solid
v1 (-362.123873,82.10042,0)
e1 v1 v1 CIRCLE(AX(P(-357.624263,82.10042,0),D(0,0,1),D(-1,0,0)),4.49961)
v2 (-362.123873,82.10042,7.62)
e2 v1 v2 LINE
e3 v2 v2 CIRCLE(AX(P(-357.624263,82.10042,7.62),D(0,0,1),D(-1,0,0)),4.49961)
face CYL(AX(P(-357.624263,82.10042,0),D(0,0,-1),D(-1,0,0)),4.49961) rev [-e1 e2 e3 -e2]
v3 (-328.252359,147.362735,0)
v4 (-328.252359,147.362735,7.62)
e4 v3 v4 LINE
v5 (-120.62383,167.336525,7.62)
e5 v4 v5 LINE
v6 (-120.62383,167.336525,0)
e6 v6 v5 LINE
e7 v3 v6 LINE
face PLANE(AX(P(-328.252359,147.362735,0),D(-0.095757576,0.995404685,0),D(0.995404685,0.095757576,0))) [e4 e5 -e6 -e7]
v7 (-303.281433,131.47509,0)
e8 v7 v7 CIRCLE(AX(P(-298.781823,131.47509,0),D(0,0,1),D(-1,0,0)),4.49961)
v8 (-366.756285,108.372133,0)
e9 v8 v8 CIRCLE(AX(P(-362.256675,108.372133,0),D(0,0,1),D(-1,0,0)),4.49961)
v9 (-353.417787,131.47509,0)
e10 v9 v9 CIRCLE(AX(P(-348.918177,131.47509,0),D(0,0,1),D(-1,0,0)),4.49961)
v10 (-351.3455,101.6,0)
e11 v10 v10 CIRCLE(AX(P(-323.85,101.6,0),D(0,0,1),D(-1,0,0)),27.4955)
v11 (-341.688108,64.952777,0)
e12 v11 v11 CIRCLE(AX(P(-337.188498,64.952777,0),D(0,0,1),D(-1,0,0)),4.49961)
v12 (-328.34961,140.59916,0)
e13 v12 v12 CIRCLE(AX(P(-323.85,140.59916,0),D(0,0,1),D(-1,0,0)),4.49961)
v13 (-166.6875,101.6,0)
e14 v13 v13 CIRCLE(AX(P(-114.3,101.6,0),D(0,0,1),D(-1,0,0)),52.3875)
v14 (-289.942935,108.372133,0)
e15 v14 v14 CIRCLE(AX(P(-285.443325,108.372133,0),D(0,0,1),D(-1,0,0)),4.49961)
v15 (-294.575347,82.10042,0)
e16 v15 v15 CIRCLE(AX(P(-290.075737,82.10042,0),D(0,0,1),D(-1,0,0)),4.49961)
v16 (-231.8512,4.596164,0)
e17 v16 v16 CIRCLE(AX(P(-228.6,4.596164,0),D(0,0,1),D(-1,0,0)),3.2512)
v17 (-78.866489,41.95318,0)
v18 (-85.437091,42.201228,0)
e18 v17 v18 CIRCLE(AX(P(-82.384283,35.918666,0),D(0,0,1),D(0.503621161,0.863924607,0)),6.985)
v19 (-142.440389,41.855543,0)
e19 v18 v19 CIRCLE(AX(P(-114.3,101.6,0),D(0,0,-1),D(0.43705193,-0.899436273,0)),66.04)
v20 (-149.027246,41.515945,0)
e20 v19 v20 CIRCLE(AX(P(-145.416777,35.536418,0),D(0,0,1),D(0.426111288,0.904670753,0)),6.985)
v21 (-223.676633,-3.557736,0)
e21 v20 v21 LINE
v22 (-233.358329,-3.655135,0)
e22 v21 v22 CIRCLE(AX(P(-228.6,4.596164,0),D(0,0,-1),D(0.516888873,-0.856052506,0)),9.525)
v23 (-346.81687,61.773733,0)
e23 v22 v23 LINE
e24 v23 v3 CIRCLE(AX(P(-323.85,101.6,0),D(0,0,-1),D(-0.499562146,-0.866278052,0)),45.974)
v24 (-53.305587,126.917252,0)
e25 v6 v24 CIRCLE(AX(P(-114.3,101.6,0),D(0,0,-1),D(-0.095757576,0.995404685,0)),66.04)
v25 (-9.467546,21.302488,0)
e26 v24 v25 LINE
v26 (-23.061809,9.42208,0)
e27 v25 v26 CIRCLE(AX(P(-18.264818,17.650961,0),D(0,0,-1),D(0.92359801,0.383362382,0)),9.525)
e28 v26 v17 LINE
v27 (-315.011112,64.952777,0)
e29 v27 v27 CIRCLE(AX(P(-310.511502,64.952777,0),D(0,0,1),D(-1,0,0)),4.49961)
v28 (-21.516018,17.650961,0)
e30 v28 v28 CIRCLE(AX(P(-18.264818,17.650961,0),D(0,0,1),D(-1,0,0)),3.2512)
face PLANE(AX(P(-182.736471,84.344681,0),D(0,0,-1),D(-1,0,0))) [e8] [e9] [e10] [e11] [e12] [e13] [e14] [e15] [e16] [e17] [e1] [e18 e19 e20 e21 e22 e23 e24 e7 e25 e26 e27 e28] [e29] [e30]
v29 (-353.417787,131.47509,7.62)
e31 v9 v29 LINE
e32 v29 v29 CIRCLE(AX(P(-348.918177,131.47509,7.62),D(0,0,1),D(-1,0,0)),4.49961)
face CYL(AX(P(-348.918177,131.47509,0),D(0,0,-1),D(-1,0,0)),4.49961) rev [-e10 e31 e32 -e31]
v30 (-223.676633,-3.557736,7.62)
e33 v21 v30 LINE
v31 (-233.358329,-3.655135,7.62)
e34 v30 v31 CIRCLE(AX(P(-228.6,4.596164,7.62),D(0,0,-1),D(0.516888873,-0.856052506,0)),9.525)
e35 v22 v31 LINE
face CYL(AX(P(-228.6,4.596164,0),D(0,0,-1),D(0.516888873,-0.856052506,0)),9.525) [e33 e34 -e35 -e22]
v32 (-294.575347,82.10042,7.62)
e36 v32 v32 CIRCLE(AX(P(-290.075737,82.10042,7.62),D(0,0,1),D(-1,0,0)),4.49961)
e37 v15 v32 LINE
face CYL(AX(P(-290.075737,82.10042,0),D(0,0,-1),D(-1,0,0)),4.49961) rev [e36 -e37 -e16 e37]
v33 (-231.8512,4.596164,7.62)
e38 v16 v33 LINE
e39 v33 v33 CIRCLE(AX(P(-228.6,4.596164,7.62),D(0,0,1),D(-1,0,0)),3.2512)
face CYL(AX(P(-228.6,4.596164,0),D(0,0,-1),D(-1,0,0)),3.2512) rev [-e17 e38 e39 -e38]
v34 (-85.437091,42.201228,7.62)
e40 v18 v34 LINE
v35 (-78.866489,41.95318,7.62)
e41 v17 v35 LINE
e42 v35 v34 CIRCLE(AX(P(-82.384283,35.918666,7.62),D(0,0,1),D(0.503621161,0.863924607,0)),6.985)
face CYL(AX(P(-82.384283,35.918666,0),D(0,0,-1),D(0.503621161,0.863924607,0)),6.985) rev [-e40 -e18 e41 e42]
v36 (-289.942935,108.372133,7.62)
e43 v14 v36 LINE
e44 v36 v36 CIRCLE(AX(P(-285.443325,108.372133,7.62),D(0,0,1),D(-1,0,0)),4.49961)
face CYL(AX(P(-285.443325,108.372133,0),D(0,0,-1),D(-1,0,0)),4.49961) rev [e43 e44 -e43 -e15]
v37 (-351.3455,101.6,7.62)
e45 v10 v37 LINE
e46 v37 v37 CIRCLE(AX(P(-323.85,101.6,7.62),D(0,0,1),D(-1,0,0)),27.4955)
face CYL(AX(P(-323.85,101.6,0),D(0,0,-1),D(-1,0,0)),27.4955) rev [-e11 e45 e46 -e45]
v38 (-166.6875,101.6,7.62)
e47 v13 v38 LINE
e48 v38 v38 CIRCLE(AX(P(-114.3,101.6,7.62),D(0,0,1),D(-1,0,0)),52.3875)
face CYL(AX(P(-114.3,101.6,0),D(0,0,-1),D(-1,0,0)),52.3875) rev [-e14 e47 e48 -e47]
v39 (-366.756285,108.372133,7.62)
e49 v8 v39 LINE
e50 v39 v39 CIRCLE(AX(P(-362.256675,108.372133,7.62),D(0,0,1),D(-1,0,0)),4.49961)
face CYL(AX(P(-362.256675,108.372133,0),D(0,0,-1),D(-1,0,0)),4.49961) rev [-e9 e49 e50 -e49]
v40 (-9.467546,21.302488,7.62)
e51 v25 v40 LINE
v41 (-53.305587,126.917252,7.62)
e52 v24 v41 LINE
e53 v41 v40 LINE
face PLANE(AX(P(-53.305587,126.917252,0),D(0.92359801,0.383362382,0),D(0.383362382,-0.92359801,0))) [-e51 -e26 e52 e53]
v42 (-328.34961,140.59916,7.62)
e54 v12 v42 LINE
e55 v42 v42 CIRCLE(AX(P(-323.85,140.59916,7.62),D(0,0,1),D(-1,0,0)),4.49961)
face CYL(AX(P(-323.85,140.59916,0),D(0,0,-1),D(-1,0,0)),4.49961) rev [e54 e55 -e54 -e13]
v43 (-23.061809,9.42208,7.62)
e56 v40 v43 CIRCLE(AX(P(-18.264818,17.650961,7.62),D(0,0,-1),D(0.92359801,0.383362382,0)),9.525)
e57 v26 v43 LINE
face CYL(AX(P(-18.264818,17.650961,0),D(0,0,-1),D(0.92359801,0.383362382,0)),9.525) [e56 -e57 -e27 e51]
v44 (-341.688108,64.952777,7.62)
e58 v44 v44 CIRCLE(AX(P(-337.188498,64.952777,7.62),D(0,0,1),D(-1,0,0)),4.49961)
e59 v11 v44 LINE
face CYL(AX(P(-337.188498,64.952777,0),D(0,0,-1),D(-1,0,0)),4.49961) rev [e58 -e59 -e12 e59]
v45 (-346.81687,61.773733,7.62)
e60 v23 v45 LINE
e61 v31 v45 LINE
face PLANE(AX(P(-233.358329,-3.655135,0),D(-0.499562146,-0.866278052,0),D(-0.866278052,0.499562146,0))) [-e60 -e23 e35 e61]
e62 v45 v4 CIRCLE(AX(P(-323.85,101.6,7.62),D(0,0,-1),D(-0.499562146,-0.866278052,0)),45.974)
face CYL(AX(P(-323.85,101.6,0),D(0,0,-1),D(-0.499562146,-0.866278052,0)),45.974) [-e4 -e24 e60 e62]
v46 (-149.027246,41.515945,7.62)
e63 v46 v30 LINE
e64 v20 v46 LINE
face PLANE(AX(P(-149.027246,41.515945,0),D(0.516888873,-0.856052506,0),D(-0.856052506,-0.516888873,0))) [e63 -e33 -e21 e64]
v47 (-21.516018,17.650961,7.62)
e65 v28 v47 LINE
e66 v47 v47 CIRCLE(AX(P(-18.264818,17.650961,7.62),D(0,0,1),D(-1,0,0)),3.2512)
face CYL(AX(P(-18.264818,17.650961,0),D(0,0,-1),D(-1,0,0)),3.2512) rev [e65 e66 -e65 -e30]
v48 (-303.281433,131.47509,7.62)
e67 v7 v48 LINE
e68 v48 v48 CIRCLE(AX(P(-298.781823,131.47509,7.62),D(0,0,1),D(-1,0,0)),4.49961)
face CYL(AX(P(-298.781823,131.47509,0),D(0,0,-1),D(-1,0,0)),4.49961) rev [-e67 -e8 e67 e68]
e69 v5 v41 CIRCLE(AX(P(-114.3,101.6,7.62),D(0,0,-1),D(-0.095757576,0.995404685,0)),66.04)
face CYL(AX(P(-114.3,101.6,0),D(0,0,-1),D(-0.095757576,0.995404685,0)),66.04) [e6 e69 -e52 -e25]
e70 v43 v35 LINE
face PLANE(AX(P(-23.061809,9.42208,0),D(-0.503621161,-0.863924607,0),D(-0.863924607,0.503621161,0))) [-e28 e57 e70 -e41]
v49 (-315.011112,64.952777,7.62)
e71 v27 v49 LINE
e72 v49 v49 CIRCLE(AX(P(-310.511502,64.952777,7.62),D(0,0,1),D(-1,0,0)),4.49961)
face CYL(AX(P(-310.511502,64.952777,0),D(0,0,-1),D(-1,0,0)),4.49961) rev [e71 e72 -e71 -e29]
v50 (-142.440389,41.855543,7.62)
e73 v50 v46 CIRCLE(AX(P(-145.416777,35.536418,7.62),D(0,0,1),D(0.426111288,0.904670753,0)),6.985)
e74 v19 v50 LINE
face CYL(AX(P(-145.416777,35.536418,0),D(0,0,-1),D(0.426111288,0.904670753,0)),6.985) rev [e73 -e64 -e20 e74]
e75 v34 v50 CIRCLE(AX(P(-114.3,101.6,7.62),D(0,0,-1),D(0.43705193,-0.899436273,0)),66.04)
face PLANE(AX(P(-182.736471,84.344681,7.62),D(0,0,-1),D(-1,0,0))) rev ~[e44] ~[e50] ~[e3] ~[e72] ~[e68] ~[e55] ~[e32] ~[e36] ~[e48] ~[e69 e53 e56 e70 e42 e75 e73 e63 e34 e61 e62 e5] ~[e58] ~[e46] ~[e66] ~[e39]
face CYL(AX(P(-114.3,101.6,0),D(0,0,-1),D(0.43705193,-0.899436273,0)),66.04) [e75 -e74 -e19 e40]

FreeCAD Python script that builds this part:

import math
import FreeCAD as App
import Part
import Sketcher
from FreeCAD import Vector
Q = App.Units.Quantity

doc = App.newDocument("Part")
params = doc.addObject("Spreadsheet::Sheet", "Params")
for row, (alias, value) in enumerate([
    ("sketch1_radius", "2.6 in"),
    ("sketch1_radius2", "2.6 in"),
    ("sketch1_radius3", "1.81 in"),
    ("sketch1_diameter", "0.256 in"),
    ("sketch1_diameter2", "0.256 in"),
    ("pad1_length", "0.3 in"),
], start=1):
    params.set(f"A{row}", alias)
    params.set(f"B{row}", "=" + value)
    params.setAlias(f"B{row}", alias)

body = doc.addObject("PartDesign::Body", "Body")

# Sketch on XY plane
sketch1 = body.newObject("Sketcher::SketchObject", "Sketch")
sketch1.AttachmentSupport = (doc.getObject("XY_Plane"), [""])
sketch1.MapMode = "FlatFace"
sketch1.addGeometry([
    Part.LineSegment(Vector(-120.62383, 167.336525, 0), Vector(-328.252359, 147.362735, 0)),  # 0
    Part.ArcOfCircle(Part.Circle(Vector(-323.85, 101.6, 0), Vector(0, 0, 1), 45.974), math.radians(95.494924), math.radians(240.028964)),  # 1
    Part.LineSegment(Vector(-346.81687, 61.773733, 0), Vector(-233.358329, -3.655135, 0)),  # 2
    Part.ArcOfCircle(Part.Circle(Vector(-228.6, 4.596164, 0), Vector(0, 0, 1), 9.525), math.radians(-119.971036), math.radians(-58.876206)),  # 3
    Part.LineSegment(Vector(-223.676633, -3.557736, 0), Vector(-149.027246, 41.515945, 0)),  # 4
    Part.ArcOfCircle(Part.Circle(Vector(-145.416777, 35.536418, 0), Vector(0, 0, 1), 6.985), math.radians(64.778975), math.radians(121.123794)),  # 5
    Part.ArcOfCircle(Part.Circle(Vector(-114.3, 101.6, 0), Vector(0, 0, 1), 66.04), math.radians(-115.221025), math.radians(-64.084067)),  # 6
    Part.ArcOfCircle(Part.Circle(Vector(-82.384283, 35.918666, 0), Vector(0, 0, 1), 6.985), math.radians(59.760135), math.radians(115.915933)),  # 7
    Part.LineSegment(Vector(-78.866489, 41.95318, 0), Vector(-23.061809, 9.42208, 0)),  # 8
    Part.ArcOfCircle(Part.Circle(Vector(-18.264818, 17.650961, 0), Vector(0, 0, 1), 9.525), math.radians(-120.239865), math.radians(22.542113)),  # 9
    Part.LineSegment(Vector(-9.467546, 21.302488, 0), Vector(-53.305587, 126.917252, 0)),  # 10
    Part.ArcOfCircle(Part.Circle(Vector(-114.3, 101.6, 0), Vector(0, 0, 1), 66.04), math.radians(22.542113), math.radians(95.494924)),  # 11
    Part.Circle(Vector(-18.264818, 17.650961, 0), Vector(0, 0, 1), 3.2512),  # 12
    Part.Circle(Vector(-228.6, 4.596164, 0), Vector(0, 0, 1), 3.2512),  # 13
    Part.Circle(Vector(-310.511502, 64.952777, 0), Vector(0, 0, 1), 4.49961),  # 14
    Part.Circle(Vector(-337.188498, 64.952777, 0), Vector(0, 0, 1), 4.49961),  # 15
    Part.Circle(Vector(-114.3, 101.6, 0), Vector(0, 0, 1), 52.3875),  # 16
    Part.Circle(Vector(-290.075737, 82.10042, 0), Vector(0, 0, 1), 4.49961),  # 17
    Part.Circle(Vector(-357.624263, 82.10042, 0), Vector(0, 0, 1), 4.49961),  # 18
    Part.Circle(Vector(-285.443325, 108.372133, 0), Vector(0, 0, 1), 4.49961),  # 19
    Part.Circle(Vector(-323.85, 101.6, 0), Vector(0, 0, 1), 27.4955),  # 20
    Part.Circle(Vector(-362.256675, 108.372133, 0), Vector(0, 0, 1), 4.49961),  # 21
    Part.Circle(Vector(-298.781823, 131.47509, 0), Vector(0, 0, 1), 4.49961),  # 22
    Part.Circle(Vector(-348.918177, 131.47509, 0), Vector(0, 0, 1), 4.49961),  # 23
    Part.Circle(Vector(-323.85, 140.59916, 0), Vector(0, 0, 1), 4.49961),  # 24
], False)
sketch1.addConstraint([
    Sketcher.Constraint("Coincident", 0, 2, 1, 1),
    Sketcher.Constraint("Coincident", 1, 2, 2, 1),
    Sketcher.Constraint("Coincident", 2, 2, 3, 1),
    Sketcher.Constraint("Coincident", 3, 2, 4, 1),
    Sketcher.Constraint("Coincident", 4, 2, 5, 2),
    Sketcher.Constraint("Coincident", 5, 1, 6, 1),
    Sketcher.Constraint("Coincident", 6, 2, 7, 2),
    Sketcher.Constraint("Coincident", 7, 1, 8, 1),
    Sketcher.Constraint("Coincident", 8, 2, 9, 1),
    Sketcher.Constraint("Coincident", 9, 2, 10, 1),
    Sketcher.Constraint("Coincident", 10, 2, 11, 1),
    Sketcher.Constraint("Coincident", 11, 2, 0, 1),
    Sketcher.Constraint("Coincident", 11, 3, 6, 3),
    Sketcher.Constraint("Coincident", 12, 3, 9, 3),
    Sketcher.Constraint("Coincident", 13, 3, 3, 3),
    Sketcher.Constraint("Coincident", 16, 3, 6, 3),
    Sketcher.Constraint("Coincident", 20, 3, 1, 3),
    Sketcher.Constraint("Radius", 6, Q("2.6 in")),
    Sketcher.Constraint("Radius", 11, Q("2.6 in")),
    Sketcher.Constraint("Radius", 1, Q("1.81 in")),
    Sketcher.Constraint("Diameter", 12, Q("0.256 in")),
    Sketcher.Constraint("Diameter", 13, Q("0.256 in")),
    Sketcher.Constraint("Diameter", 16, Q("4.125 in")),
    Sketcher.Constraint("Diameter", 20, Q("2.165 in")),
    Sketcher.Constraint("DistanceY", -1, 1, 1, 3, Q("4 in")),
    Sketcher.Constraint("DistanceX", 3, 3, -1, 1, Q("9 in")),
    Sketcher.Constraint("DistanceY", -1, 1, 6, 3, Q("4 in")),
    Sketcher.Constraint("Radius", 3, Q("0.375 in")),
    Sketcher.Constraint("Radius", 5, Q("0.275 in")),
    Sketcher.Constraint("Radius", 7, Q("0.275 in")),
    Sketcher.Constraint("Radius", 9, Q("0.375 in")),
    Sketcher.Constraint("Diameter", 14, Q("0.3543 in")),
    Sketcher.Constraint("Diameter", 15, Q("0.3543 in")),
    Sketcher.Constraint("Diameter", 17, Q("0.3543 in")),
    Sketcher.Constraint("Diameter", 18, Q("0.3543 in")),
    Sketcher.Constraint("Diameter", 19, Q("0.3543 in")),
    Sketcher.Constraint("Diameter", 21, Q("0.3543 in")),
    Sketcher.Constraint("Diameter", 22, Q("0.3543 in")),
    Sketcher.Constraint("Diameter", 23, Q("0.3543 in")),
    Sketcher.Constraint("Diameter", 24, Q("0.3543 in")),
    Sketcher.Constraint("DistanceX", 6, 3, -1, 1, Q("4.5 in")),
    Sketcher.Constraint("DistanceX", 1, 3, -1, 1, Q("12.75 in")),
    Sketcher.Constraint("DistanceX", 24, 3, -1, 1, Q("12.75 in")),
    Sketcher.Constraint("DistanceY", -1, 1, 17, 3, Q("3.2323 in")),
    Sketcher.Constraint("DistanceY", -1, 1, 18, 3, Q("3.2323 in")),
    Sketcher.Constraint("DistanceY", -1, 1, 24, 3, Q("5.5354 in")),
    Sketcher.Constraint("DistanceY", -1, 1, 7, 1, Q("1.6517 in")),
    Sketcher.Constraint("DistanceX", 14, 3, -1, 1, 310.511502),
    Sketcher.Constraint("DistanceX", 15, 3, -1, 1, 337.188498),
    Sketcher.Constraint("DistanceX", 22, 3, 19, 3, 13.338498),
    Sketcher.Constraint("DistanceX", 21, 3, 23, 3, 13.338498),
    Sketcher.Constraint("DistanceY", 2, 2, 3, 3, 8.251298),
    Sketcher.Constraint("DistanceY", 3, 2, 3, 3, 8.1539),
    Sketcher.Constraint("DistanceY", 4, 2, 5, 1, 0.339598),
    Sketcher.Constraint("DistanceX", 5, 1, 6, 2, 57.003299),
    Sketcher.Constraint("DistanceX", 6, 2, 7, 1, 6.570602),
    Sketcher.Constraint("DistanceY", 8, 2, 7, 1, 32.5311),
    Sketcher.Constraint("DistanceX", 7, 1, 10, 2, 25.560902),
    Sketcher.Constraint("Distance", 0, 208.587052),
    Sketcher.Constraint("Distance", 2, 130.972429),
    Sketcher.Constraint("Distance", 4, 87.20188),
    Sketcher.Constraint("Distance", 10, 114.351441),
    Sketcher.Constraint("DistanceY", -1, 1, 5, 3, 35.536418),
    Sketcher.Constraint("DistanceY", -1, 1, 9, 3, 17.650961),
    Sketcher.Constraint("DistanceY", -1, 1, 22, 3, 131.47509),
    Sketcher.Constraint("DistanceY", -1, 1, 23, 3, 131.47509),
    Sketcher.Constraint("DistanceX", 0, 2, -1, 1, 328.252359),
    Sketcher.Constraint("DistanceX", 1, 2, -1, 1, 346.81687),
    Sketcher.Constraint("DistanceX", 8, 2, -1, 1, 23.061809),
    Sketcher.Constraint("DistanceY", 5, 3, 14, 3, 29.416359),
    Sketcher.Constraint("DistanceY", 5, 3, 15, 3, 29.416359),
    Sketcher.Constraint("DistanceX", 15, 3, 17, 3, 47.112762),
    Sketcher.Constraint("DistanceX", 18, 3, 14, 3, 47.112762),
    Sketcher.Constraint("DistanceX", 17, 3, 19, 3, 4.632412),
    Sketcher.Constraint("DistanceX", 21, 3, 18, 3, 4.632412),
    Sketcher.Constraint("DistanceY", -1, 1, 19, 3, 108.372133),
    Sketcher.Constraint("DistanceY", -1, 1, 21, 3, 108.372133),
])
sketch1.setExpression("Constraints[17]", "Params.sketch1_radius")
sketch1.setExpression("Constraints[18]", "Params.sketch1_radius2")
sketch1.setExpression("Constraints[19]", "Params.sketch1_radius3")
sketch1.setExpression("Constraints[20]", "Params.sketch1_diameter")
sketch1.setExpression("Constraints[21]", "Params.sketch1_diameter2")
pad1 = body.newObject("PartDesign::Pad", "Pad")
pad1.Profile = sketch1
pad1.setExpression("Length", "Params.pad1_length")

doc.recompute()
